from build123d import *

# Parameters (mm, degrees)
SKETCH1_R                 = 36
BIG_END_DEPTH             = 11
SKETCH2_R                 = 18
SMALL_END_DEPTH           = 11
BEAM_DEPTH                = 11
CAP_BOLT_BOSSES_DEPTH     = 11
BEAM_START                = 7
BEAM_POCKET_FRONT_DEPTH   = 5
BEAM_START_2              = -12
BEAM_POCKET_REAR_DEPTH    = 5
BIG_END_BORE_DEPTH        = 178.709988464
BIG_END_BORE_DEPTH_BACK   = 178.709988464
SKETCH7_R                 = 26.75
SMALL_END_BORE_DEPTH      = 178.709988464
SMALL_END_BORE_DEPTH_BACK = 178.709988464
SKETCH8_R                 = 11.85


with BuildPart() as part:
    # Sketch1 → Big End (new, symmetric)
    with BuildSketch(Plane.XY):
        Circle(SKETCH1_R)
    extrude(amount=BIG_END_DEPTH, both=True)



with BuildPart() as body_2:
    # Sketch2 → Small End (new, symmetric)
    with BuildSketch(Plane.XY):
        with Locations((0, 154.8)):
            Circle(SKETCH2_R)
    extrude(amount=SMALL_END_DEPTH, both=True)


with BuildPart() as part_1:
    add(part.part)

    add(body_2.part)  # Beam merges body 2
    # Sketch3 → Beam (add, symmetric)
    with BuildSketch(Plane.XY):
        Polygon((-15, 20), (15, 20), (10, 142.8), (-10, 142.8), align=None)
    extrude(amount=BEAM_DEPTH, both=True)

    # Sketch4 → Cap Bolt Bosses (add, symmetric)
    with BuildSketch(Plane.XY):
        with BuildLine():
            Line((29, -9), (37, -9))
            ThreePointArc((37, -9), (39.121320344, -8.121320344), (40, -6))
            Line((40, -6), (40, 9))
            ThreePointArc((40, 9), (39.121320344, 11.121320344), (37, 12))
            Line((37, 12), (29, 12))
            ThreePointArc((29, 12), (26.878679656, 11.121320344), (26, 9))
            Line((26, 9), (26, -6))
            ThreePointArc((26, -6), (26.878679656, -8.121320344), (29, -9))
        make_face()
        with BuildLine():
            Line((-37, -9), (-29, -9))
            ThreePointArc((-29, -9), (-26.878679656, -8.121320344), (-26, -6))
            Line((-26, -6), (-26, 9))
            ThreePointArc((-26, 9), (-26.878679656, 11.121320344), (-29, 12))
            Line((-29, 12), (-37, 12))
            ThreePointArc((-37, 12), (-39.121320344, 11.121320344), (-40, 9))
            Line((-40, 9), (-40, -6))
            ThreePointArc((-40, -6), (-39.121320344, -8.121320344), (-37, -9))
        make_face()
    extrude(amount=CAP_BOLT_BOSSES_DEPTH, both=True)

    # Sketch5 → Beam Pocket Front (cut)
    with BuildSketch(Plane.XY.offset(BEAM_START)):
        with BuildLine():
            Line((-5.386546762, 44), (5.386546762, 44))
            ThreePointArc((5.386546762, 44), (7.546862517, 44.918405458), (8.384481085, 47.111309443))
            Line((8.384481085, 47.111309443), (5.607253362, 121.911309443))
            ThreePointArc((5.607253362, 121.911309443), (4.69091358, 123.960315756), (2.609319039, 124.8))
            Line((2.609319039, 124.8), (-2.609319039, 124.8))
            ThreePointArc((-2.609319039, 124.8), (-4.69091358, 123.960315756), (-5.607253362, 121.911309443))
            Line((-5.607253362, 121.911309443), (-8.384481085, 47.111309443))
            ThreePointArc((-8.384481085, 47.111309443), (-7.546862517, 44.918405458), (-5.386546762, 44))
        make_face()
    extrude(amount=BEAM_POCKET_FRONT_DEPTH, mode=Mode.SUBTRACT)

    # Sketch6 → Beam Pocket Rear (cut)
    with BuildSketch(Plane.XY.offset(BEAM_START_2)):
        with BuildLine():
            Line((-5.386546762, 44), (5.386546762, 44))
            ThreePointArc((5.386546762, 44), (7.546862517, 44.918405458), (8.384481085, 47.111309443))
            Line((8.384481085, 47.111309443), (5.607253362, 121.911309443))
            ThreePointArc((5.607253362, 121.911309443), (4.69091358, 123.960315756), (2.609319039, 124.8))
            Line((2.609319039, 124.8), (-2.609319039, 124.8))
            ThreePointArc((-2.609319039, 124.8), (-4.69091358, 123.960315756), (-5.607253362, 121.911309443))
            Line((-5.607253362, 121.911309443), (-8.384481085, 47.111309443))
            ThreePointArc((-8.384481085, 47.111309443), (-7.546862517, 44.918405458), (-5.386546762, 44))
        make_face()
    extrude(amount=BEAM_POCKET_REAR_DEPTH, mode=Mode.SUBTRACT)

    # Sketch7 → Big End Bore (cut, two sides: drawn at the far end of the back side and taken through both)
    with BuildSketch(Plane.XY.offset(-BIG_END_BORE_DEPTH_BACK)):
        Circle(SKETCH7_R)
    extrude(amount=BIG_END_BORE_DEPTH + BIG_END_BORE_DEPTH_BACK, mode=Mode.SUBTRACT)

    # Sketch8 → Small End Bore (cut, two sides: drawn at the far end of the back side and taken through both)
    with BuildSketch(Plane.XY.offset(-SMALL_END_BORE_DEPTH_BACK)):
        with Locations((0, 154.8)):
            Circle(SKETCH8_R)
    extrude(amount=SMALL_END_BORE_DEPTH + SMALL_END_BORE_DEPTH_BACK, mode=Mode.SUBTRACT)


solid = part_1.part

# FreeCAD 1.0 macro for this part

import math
import FreeCAD as App
import Part
import Sketcher
from FreeCAD import Vector

doc = App.newDocument("Part")
params = doc.addObject("Spreadsheet::Sheet", "Params")
for row, (alias, value) in enumerate([
    ("sketch1_diameter", "72 mm"),
    ("pad1_length", "22 mm"),
    ("sketch2_diameter", "36 mm"),
    ("pad2_length", "22 mm"),
    ("sketch3_width", "30 mm"),
    ("sketch3_width2", "20 mm"),
    ("pad3_length", "22 mm"),
    ("sketch4_radius", "3 mm"),
    ("sketch4_width", "8 mm"),
    ("sketch4_height", "15 mm"),
    ("pad4_length", "22 mm"),
    ("sketch5_radius", "3 mm"),
    ("pocket1_length", "5 mm"),
    ("sketch6_radius", "3 mm"),
    ("pocket2_length", "5 mm"),
    ("sketch7_diameter", "53.5 mm"),
    ("sketch8_diameter", "23.7 mm"),
], start=1):
    params.set(f"A{row}", alias)
    params.set(f"B{row}", "=" + value)
    params.setAlias(f"B{row}", alias)

body = doc.addObject("PartDesign::Body", "Body")

sketch1 = doc.addObject("Sketcher::SketchObject", "Sketch")
body.addObject(sketch1)
sketch1.AttachmentSupport = (doc.XY_Plane, [""])
sketch1.MapMode = "FlatFace"
sketch1.addGeometry(Part.Circle(Vector(0, 0, 0), Vector(0, 0, 1), 36), False)
sketch1.addConstraint([
    Sketcher.Constraint("Coincident", 0, 3, -1, 1),
    Sketcher.Constraint("Diameter", 0, 72.0),
])
sketch1.setExpression("Constraints[1]", "Params.sketch1_diameter")
pad1 = doc.addObject("PartDesign::Pad", "Pad")
body.addObject(pad1)
pad1.Profile = sketch1
pad1.setExpression("Length", "Params.pad1_length")
pad1.Midplane = True
body2 = doc.addObject("PartDesign::Body", "Body001")

sketch2 = doc.addObject("Sketcher::SketchObject", "Sketch001")
body2.addObject(sketch2)
sketch2.AttachmentSupport = (doc.getObject("XY_Plane001"), [""])
sketch2.MapMode = "FlatFace"
sketch2.addGeometry(Part.Circle(Vector(0, 155, 0), Vector(0, 0, 1), 18), False)
sketch2.addConstraint([
    Sketcher.Constraint("PointOnObject", 0, 3, -2),
    Sketcher.Constraint("Diameter", 0, 36.0),
    Sketcher.Constraint("DistanceY", -1, 1, 0, 3, 154.8),
])
sketch2.setExpression("Constraints[1]", "Params.sketch2_diameter")
pad2 = doc.addObject("PartDesign::Pad", "Pad001")
body2.addObject(pad2)
pad2.Profile = sketch2
pad2.setExpression("Length", "Params.pad2_length")
pad2.Midplane = True
body.AllowCompound = True
doc.recompute()

boolean = doc.addObject("PartDesign::Boolean", "Boolean")
body.addObject(boolean)
boolean.Type = "Fuse"
boolean.addObjects([body2])

sketch3 = doc.addObject("Sketcher::SketchObject", "Sketch002")
body.addObject(sketch3)
sketch3.AttachmentSupport = (doc.XY_Plane, [""])
sketch3.MapMode = "FlatFace"
sketch3.addGeometry([
    Part.LineSegment(Vector(-15, 20, 0), Vector(15, 20, 0)),
    Part.LineSegment(Vector(15, 20, 0), Vector(10, 143, 0)),
    Part.LineSegment(Vector(10, 143, 0), Vector(-10, 143, 0)),
    Part.LineSegment(Vector(-10, 143, 0), Vector(-15, 20, 0)),
], False)
sketch3.addConstraint([
    Sketcher.Constraint("Coincident", 0, 2, 1, 1),
    Sketcher.Constraint("Coincident", 1, 2, 2, 1),
    Sketcher.Constraint("Coincident", 2, 2, 3, 1),
    Sketcher.Constraint("Coincident", 3, 2, 0, 1),
    Sketcher.Constraint("Horizontal", 0),
    Sketcher.Constraint("Horizontal", 2),
    Sketcher.Constraint("Equal", 1, 3),
    Sketcher.Constraint("DistanceX", 0, 1, 0, 2, 30.0),
    Sketcher.Constraint("DistanceX", 2, 2, 2, 1, 20.0),
    Sketcher.Constraint("DistanceX", -1, 1, 0, 2, 15.0),
    Sketcher.Constraint("DistanceY", -1, 1, 0, 2, 20.0),
    Sketcher.Constraint("DistanceY", -1, 1, 1, 2, 142.8),
])
sketch3.setExpression("Constraints[7]", "Params.sketch3_width")
sketch3.setExpression("Constraints[8]", "Params.sketch3_width2")
pad3 = doc.addObject("PartDesign::Pad", "Pad002")
body.addObject(pad3)
pad3.Profile = sketch3
pad3.setExpression("Length", "Params.pad3_length")
pad3.Midplane = True

sketch4 = doc.addObject("Sketcher::SketchObject", "Sketch003")
body.addObject(sketch4)
sketch4.AttachmentSupport = (doc.XY_Plane, [""])
sketch4.MapMode = "FlatFace"
sketch4.addGeometry([
    Part.LineSegment(Vector(29, -9, 0), Vector(37, -9, 0)),
    Part.ArcOfCircle(Part.Circle(Vector(37, -6, 0), Vector(0, 0, 1), 3), math.radians(-90), math.radians(0)),
    Part.LineSegment(Vector(40, -6, 0), Vector(40, 9, 0)),
    Part.ArcOfCircle(Part.Circle(Vector(37, 9, 0), Vector(0, 0, 1), 3), math.radians(0), math.radians(90)),
    Part.LineSegment(Vector(37, 12, 0), Vector(29, 12, 0)),
    Part.ArcOfCircle(Part.Circle(Vector(29, 9, 0), Vector(0, 0, 1), 3), math.radians(90), math.radians(180)),
    Part.LineSegment(Vector(26, 9, 0), Vector(26, -6, 0)),
    Part.ArcOfCircle(Part.Circle(Vector(29, -6, 0), Vector(0, 0, 1), 3), math.radians(180), math.radians(270)),
    Part.LineSegment(Vector(-37, -9, 0), Vector(-29, -9, 0)),
    Part.ArcOfCircle(Part.Circle(Vector(-29, -6, 0), Vector(0, 0, 1), 3), math.radians(-90), math.radians(0)),
    Part.LineSegment(Vector(-26, -6, 0), Vector(-26, 9, 0)),
    Part.ArcOfCircle(Part.Circle(Vector(-29, 9, 0), Vector(0, 0, 1), 3), math.radians(0), math.radians(90)),
    Part.LineSegment(Vector(-29, 12, 0), Vector(-37, 12, 0)),
    Part.ArcOfCircle(Part.Circle(Vector(-37, 9, 0), Vector(0, 0, 1), 3), math.radians(90), math.radians(180)),
    Part.LineSegment(Vector(-40, 9, 0), Vector(-40, -6, 0)),
    Part.ArcOfCircle(Part.Circle(Vector(-37, -6, 0), Vector(0, 0, 1), 3), math.radians(180), math.radians(270)),
], False)
sketch4.addConstraint([
    Sketcher.Constraint("Tangent", 0, 2, 1, 1),
    Sketcher.Constraint("Tangent", 1, 2, 2, 1),
    Sketcher.Constraint("Tangent", 2, 2, 3, 1),
    Sketcher.Constraint("Tangent", 3, 2, 4, 1),
    Sketcher.Constraint("Tangent", 4, 2, 5, 1),
    Sketcher.Constraint("Tangent", 5, 2, 6, 1),
    Sketcher.Constraint("Tangent", 6, 2, 7, 1),
    Sketcher.Constraint("Tangent", 7, 2, 0, 1),
    Sketcher.Constraint("Tangent", 8, 2, 9, 1),
    Sketcher.Constraint("Tangent", 9, 2, 10, 1),
    Sketcher.Constraint("Tangent", 10, 2, 11, 1),
    Sketcher.Constraint("Tangent", 11, 2, 12, 1),
    Sketcher.Constraint("Tangent", 12, 2, 13, 1),
    Sketcher.Constraint("Tangent", 13, 2, 14, 1),
    Sketcher.Constraint("Tangent", 14, 2, 15, 1),
    Sketcher.Constraint("Tangent", 15, 2, 8, 1),
    Sketcher.Constraint("Horizontal", 0),
    Sketcher.Constraint("Vertical", 2),
    Sketcher.Constraint("Horizontal", 4),
    Sketcher.Constraint("Vertical", 6),
    Sketcher.Constraint("Horizontal", 8),
    Sketcher.Constraint("Vertical", 10),
    Sketcher.Constraint("Horizontal", 12),
    Sketcher.Constraint("Vertical", 14),
    Sketcher.Constraint("Equal", 1, 3),
    Sketcher.Constraint("Equal", 3, 5),
    Sketcher.Constraint("Equal", 5, 7),
    Sketcher.Constraint("Equal", 7, 9),
    Sketcher.Constraint("Equal", 9, 11),
    Sketcher.Constraint("Equal", 11, 13),
    Sketcher.Constraint("Equal", 13, 15),
    Sketcher.Constraint("Symmetric", 7, 3, 9, 3, -2),
    Sketcher.Constraint("Symmetric", 3, 3, 13, 3, -2),
    Sketcher.Constraint("Radius", 1, 3.0),
    Sketcher.Constraint("DistanceX", 0, 1, 0, 2, 8.0),
    Sketcher.Constraint("DistanceY", 2, 1, 2, 2, 15.0),
    Sketcher.Constraint("DistanceX", -1, 1, 1, 3, 37.0),
    Sketcher.Constraint("DistanceY", 1, 3, -1, 1, 6.0),
])
sketch4.setExpression("Constraints[33]", "Params.sketch4_radius")
sketch4.setExpression("Constraints[34]", "Params.sketch4_width")
sketch4.setExpression("Constraints[35]", "Params.sketch4_height")
pad4 = doc.addObject("PartDesign::Pad", "Pad003")
body.addObject(pad4)
pad4.Profile = sketch4
pad4.setExpression("Length", "Params.pad4_length")
pad4.Midplane = True

sketch5 = doc.addObject("Sketcher::SketchObject", "Sketch004")
body.addObject(sketch5)
sketch5.AttachmentSupport = (doc.XY_Plane, [""])
sketch5.MapMode = "FlatFace"
sketch5.AttachmentOffset = App.Placement(Vector(0, 0, 7), App.Rotation())
sketch5.addGeometry([
    Part.LineSegment(Vector(-5.4, 44, 0), Vector(5.4, 44, 0)),
    Part.ArcOfCircle(Part.Circle(Vector(5.4, 47, 0), Vector(0, 0, 1), 3), math.radians(-90), math.radians(2)),
    Part.LineSegment(Vector(8.4, 47.1, 0), Vector(5.6, 121.9, 0)),
    Part.ArcOfCircle(Part.Circle(Vector(2.6, 121.8, 0), Vector(0, 0, 1), 3), math.radians(2), math.radians(90)),
    Part.LineSegment(Vector(2.6, 124.8, 0), Vector(-2.6, 124.8, 0)),
    Part.ArcOfCircle(Part.Circle(Vector(-2.6, 121.8, 0), Vector(0, 0, 1), 3), math.radians(90), math.radians(178)),
    Part.LineSegment(Vector(-5.6, 121.9, 0), Vector(-8.4, 47.1, 0)),
    Part.ArcOfCircle(Part.Circle(Vector(-5.4, 47, 0), Vector(0, 0, 1), 3), math.radians(178), math.radians(270)),
], False)
sketch5.addConstraint([
    Sketcher.Constraint("Tangent", 0, 2, 1, 1),
    Sketcher.Constraint("Tangent", 1, 2, 2, 1),
    Sketcher.Constraint("Tangent", 2, 2, 3, 1),
    Sketcher.Constraint("Tangent", 3, 2, 4, 1),
    Sketcher.Constraint("Tangent", 4, 2, 5, 1),
    Sketcher.Constraint("Tangent", 5, 2, 6, 1),
    Sketcher.Constraint("Tangent", 6, 2, 7, 1),
    Sketcher.Constraint("Tangent", 7, 2, 0, 1),
    Sketcher.Constraint("Horizontal", 0),
    Sketcher.Constraint("Horizontal", 4),
    Sketcher.Constraint("Equal", 1, 3),
    Sketcher.Constraint("Equal", 3, 5),
    Sketcher.Constraint("Equal", 5, 7),
    Sketcher.Constraint("Symmetric", 2, 2, 5, 2, -2),
    Sketcher.Constraint("Radius", 1, 3.0),
    Sketcher.Constraint("DistanceY", -1, 1, 1, 3, 47.0),
    Sketcher.Constraint("DistanceY", -1, 1, 3, 3, 121.8),
    Sketcher.Constraint("DistanceX", 4, 2, 4, 1, 5.218638),
    Sketcher.Constraint("DistanceX", 5, 3, 1, 2, 10.9938),
])
sketch5.setExpression("Constraints[14]", "Params.sketch5_radius")
pocket1 = doc.addObject("PartDesign::Pocket", "Pocket")
body.addObject(pocket1)
pocket1.Profile = sketch5
pocket1.setExpression("Length", "Params.pocket1_length")
pocket1.Reversed = True

sketch6 = doc.addObject("Sketcher::SketchObject", "Sketch005")
body.addObject(sketch6)
sketch6.AttachmentSupport = (doc.XY_Plane, [""])
sketch6.MapMode = "FlatFace"
sketch6.AttachmentOffset = App.Placement(Vector(0, 0, -12), App.Rotation())
sketch6.addGeometry([
    Part.LineSegment(Vector(-5.4, 44, 0), Vector(5.4, 44, 0)),
    Part.ArcOfCircle(Part.Circle(Vector(5.4, 47, 0), Vector(0, 0, 1), 3), math.radians(-90), math.radians(2)),
    Part.LineSegment(Vector(8.4, 47.1, 0), Vector(5.6, 121.9, 0)),
    Part.ArcOfCircle(Part.Circle(Vector(2.6, 121.8, 0), Vector(0, 0, 1), 3), math.radians(2), math.radians(90)),
    Part.LineSegment(Vector(2.6, 124.8, 0), Vector(-2.6, 124.8, 0)),
    Part.ArcOfCircle(Part.Circle(Vector(-2.6, 121.8, 0), Vector(0, 0, 1), 3), math.radians(90), math.radians(178)),
    Part.LineSegment(Vector(-5.6, 121.9, 0), Vector(-8.4, 47.1, 0)),
    Part.ArcOfCircle(Part.Circle(Vector(-5.4, 47, 0), Vector(0, 0, 1), 3), math.radians(178), math.radians(270)),
], False)
sketch6.addConstraint([
    Sketcher.Constraint("Tangent", 0, 2, 1, 1),
    Sketcher.Constraint("Tangent", 1, 2, 2, 1),
    Sketcher.Constraint("Tangent", 2, 2, 3, 1),
    Sketcher.Constraint("Tangent", 3, 2, 4, 1),
    Sketcher.Constraint("Tangent", 4, 2, 5, 1),
    Sketcher.Constraint("Tangent", 5, 2, 6, 1),
    Sketcher.Constraint("Tangent", 6, 2, 7, 1),
    Sketcher.Constraint("Tangent", 7, 2, 0, 1),
    Sketcher.Constraint("Horizontal", 0),
    Sketcher.Constraint("Horizontal", 4),
    Sketcher.Constraint("Equal", 1, 3),
    Sketcher.Constraint("Equal", 3, 5),
    Sketcher.Constraint("Equal", 5, 7),
    Sketcher.Constraint("Symmetric", 2, 2, 5, 2, -2),
    Sketcher.Constraint("Radius", 1, 3.0),
    Sketcher.Constraint("DistanceY", -1, 1, 1, 3, 47.0),
    Sketcher.Constraint("DistanceY", -1, 1, 3, 3, 121.8),
    Sketcher.Constraint("DistanceX", 4, 2, 4, 1, 5.218638),
    Sketcher.Constraint("DistanceX", 5, 3, 1, 2, 10.9938),
])
sketch6.setExpression("Constraints[14]", "Params.sketch6_radius")
pocket2 = doc.addObject("PartDesign::Pocket", "Pocket001")
body.addObject(pocket2)
pocket2.Profile = sketch6
pocket2.setExpression("Length", "Params.pocket2_length")
pocket2.Reversed = True

sketch7 = doc.addObject("Sketcher::SketchObject", "Sketch006")
body.addObject(sketch7)
sketch7.AttachmentSupport = (doc.XY_Plane, [""])
sketch7.MapMode = "FlatFace"
sketch7.addGeometry(Part.Circle(Vector(0, 0, 0), Vector(0, 0, 1), 27), False)
sketch7.addConstraint([
    Sketcher.Constraint("Coincident", 0, 3, -1, 1),
    Sketcher.Constraint("Diameter", 0, 53.5),
])
sketch7.setExpression("Constraints[1]", "Params.sketch7_diameter")
pocket3 = doc.addObject("PartDesign::Pocket", "Pocket002")
body.addObject(pocket3)
pocket3.Profile = sketch7
pocket3.Type = "ThroughAll"
pocket3.Midplane = True

sketch8 = doc.addObject("Sketcher::SketchObject", "Sketch007")
body.addObject(sketch8)
sketch8.AttachmentSupport = (doc.XY_Plane, [""])
sketch8.MapMode = "FlatFace"
sketch8.addGeometry(Part.Circle(Vector(0, 155, 0), Vector(0, 0, 1), 12), False)
sketch8.addConstraint([
    Sketcher.Constraint("PointOnObject", 0, 3, -2),
    Sketcher.Constraint("Diameter", 0, 23.7),
    Sketcher.Constraint("DistanceY", -1, 1, 0, 3, 154.8),
])
sketch8.setExpression("Constraints[1]", "Params.sketch8_diameter")
pocket4 = doc.addObject("PartDesign::Pocket", "Pocket003")
body.addObject(pocket4)
pocket4.Profile = sketch8
pocket4.Type = "ThroughAll"
pocket4.Midplane = True

doc.recompute()
